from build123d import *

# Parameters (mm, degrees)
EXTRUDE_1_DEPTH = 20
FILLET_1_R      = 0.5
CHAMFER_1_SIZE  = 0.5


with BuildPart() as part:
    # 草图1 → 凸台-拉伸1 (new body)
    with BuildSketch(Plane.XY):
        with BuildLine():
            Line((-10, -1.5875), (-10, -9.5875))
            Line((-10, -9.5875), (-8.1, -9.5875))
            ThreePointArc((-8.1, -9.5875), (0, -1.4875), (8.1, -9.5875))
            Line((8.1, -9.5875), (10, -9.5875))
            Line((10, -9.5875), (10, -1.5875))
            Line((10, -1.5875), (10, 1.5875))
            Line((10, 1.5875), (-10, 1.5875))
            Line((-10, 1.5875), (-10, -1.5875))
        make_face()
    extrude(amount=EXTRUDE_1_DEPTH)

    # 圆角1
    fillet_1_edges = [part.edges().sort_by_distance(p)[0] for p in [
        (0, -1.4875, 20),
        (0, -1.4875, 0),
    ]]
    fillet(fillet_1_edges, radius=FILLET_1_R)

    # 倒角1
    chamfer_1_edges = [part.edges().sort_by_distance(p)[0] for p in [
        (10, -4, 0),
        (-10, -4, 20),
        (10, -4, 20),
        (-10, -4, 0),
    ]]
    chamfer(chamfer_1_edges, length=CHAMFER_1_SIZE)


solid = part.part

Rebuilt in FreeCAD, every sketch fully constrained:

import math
import FreeCAD as App
import Part
import Sketcher

V = App.Vector


def edges_at(feature, points):
    """Names of the edges that pass closest to the given points."""
    edges = feature.Shape.Edges
    near = lambda p: min(range(len(edges)), key=lambda i: edges[i].distToShape(Part.Vertex(*p))[0])
    return sorted({f"Edge{near(p) + 1}" for p in points})

doc = App.newDocument("Part")
params = doc.addObject("Spreadsheet::Sheet", "Params")
for row, (alias, value) in enumerate([
    ("sketch1_radius", "8.1 mm"),
    ("sketch1_width", "20 mm"),
    ("pad1_length", "20 mm"),
    ("fillet_radius", "0.5 mm"),
    ("chamfer_size", "0.5 mm"),
], start=1):
    params.set(f"A{row}", alias)
    params.set(f"B{row}", "=" + value)
    params.setAlias(f"B{row}", alias)

body = doc.addObject("PartDesign::Body", "Body")

# Sketch on XY plane
sketch1 = body.newObject("Sketcher::SketchObject", "Sketch")
sketch1.AttachmentSupport = (doc.getObject("XY_Plane"), [""])
sketch1.MapMode = "FlatFace"
sketch1.addGeometry(Part.LineSegment(V(-10, -9.6, 0), V(-8.1, -9.6, 0)), False)
sketch1.addGeometry(Part.ArcOfCircle(Part.Circle(V(0, -9.6, 0), V(0, 0, 1), 8.1), math.radians(0), math.radians(180)), False)
sketch1.addGeometry(Part.LineSegment(V(8.1, -9.6, 0), V(10, -9.6, 0)), False)
sketch1.addGeometry(Part.LineSegment(V(10, -9.6, 0), V(10, 1.6, 0)), False)
sketch1.addGeometry(Part.LineSegment(V(10, 1.6, 0), V(-10, 1.6, 0)), False)
sketch1.addGeometry(Part.LineSegment(V(-10, 1.6, 0), V(-10, -9.6, 0)), False)
sketch1.addConstraint(Sketcher.Constraint("Coincident", 0, 2, 1, 2))
sketch1.addConstraint(Sketcher.Constraint("Coincident", 1, 1, 2, 1))
sketch1.addConstraint(Sketcher.Constraint("Coincident", 2, 2, 3, 1))
sketch1.addConstraint(Sketcher.Constraint("Coincident", 3, 2, 4, 1))
sketch1.addConstraint(Sketcher.Constraint("Coincident", 4, 2, 5, 1))
sketch1.addConstraint(Sketcher.Constraint("Coincident", 5, 2, 0, 1))
sketch1.addConstraint(Sketcher.Constraint("Horizontal", 0))
sketch1.addConstraint(Sketcher.Constraint("Horizontal", 2))
sketch1.addConstraint(Sketcher.Constraint("Vertical", 3))
sketch1.addConstraint(Sketcher.Constraint("Horizontal", 4))
sketch1.addConstraint(Sketcher.Constraint("Vertical", 5))
sketch1.addConstraint(Sketcher.Constraint("Symmetric", 0, 2, 1, 1, -2))
sketch1.addConstraint(Sketcher.Constraint("Horizontal", 1, 3, 0, 2))
sketch1.addConstraint(Sketcher.Constraint("Equal", 0, 2))
sketch1.addConstraint(Sketcher.Constraint("Radius", 1, 8.1))
sketch1.addConstraint(Sketcher.Constraint("DistanceX", 4, 2, 4, 1, 20.0))
sketch1.addConstraint(Sketcher.Constraint("DistanceY", 3, 1, 3, 2, 11.175))
sketch1.addConstraint(Sketcher.Constraint("DistanceY", 1, 3, -1, 1, 9.5875))
sketch1.setExpression("Constraints[14]", "Params.sketch1_radius")
sketch1.setExpression("Constraints[15]", "Params.sketch1_width")
pad1 = body.newObject("PartDesign::Pad", "Pad")
pad1.Profile = sketch1
pad1.setExpression("Length", "Params.pad1_length")
doc.recompute()

fillet = body.newObject("PartDesign::Fillet", "Fillet")
fillet.Base = (pad1, edges_at(pad1, [(0, -1.488, 20), (0, -1.488, 0)]))
fillet.setExpression("Radius", "Params.fillet_radius")
doc.recompute()

chamfer = body.newObject("PartDesign::Chamfer", "Chamfer")
chamfer.Base = (fillet, edges_at(fillet, [
    (10, -4, 0),
    (-10, -4, 20),
    (10, -4, 20),
    (-10, -4, 0),
]))
chamfer.setExpression("Size", "Params.chamfer_size")

doc.recompute()
